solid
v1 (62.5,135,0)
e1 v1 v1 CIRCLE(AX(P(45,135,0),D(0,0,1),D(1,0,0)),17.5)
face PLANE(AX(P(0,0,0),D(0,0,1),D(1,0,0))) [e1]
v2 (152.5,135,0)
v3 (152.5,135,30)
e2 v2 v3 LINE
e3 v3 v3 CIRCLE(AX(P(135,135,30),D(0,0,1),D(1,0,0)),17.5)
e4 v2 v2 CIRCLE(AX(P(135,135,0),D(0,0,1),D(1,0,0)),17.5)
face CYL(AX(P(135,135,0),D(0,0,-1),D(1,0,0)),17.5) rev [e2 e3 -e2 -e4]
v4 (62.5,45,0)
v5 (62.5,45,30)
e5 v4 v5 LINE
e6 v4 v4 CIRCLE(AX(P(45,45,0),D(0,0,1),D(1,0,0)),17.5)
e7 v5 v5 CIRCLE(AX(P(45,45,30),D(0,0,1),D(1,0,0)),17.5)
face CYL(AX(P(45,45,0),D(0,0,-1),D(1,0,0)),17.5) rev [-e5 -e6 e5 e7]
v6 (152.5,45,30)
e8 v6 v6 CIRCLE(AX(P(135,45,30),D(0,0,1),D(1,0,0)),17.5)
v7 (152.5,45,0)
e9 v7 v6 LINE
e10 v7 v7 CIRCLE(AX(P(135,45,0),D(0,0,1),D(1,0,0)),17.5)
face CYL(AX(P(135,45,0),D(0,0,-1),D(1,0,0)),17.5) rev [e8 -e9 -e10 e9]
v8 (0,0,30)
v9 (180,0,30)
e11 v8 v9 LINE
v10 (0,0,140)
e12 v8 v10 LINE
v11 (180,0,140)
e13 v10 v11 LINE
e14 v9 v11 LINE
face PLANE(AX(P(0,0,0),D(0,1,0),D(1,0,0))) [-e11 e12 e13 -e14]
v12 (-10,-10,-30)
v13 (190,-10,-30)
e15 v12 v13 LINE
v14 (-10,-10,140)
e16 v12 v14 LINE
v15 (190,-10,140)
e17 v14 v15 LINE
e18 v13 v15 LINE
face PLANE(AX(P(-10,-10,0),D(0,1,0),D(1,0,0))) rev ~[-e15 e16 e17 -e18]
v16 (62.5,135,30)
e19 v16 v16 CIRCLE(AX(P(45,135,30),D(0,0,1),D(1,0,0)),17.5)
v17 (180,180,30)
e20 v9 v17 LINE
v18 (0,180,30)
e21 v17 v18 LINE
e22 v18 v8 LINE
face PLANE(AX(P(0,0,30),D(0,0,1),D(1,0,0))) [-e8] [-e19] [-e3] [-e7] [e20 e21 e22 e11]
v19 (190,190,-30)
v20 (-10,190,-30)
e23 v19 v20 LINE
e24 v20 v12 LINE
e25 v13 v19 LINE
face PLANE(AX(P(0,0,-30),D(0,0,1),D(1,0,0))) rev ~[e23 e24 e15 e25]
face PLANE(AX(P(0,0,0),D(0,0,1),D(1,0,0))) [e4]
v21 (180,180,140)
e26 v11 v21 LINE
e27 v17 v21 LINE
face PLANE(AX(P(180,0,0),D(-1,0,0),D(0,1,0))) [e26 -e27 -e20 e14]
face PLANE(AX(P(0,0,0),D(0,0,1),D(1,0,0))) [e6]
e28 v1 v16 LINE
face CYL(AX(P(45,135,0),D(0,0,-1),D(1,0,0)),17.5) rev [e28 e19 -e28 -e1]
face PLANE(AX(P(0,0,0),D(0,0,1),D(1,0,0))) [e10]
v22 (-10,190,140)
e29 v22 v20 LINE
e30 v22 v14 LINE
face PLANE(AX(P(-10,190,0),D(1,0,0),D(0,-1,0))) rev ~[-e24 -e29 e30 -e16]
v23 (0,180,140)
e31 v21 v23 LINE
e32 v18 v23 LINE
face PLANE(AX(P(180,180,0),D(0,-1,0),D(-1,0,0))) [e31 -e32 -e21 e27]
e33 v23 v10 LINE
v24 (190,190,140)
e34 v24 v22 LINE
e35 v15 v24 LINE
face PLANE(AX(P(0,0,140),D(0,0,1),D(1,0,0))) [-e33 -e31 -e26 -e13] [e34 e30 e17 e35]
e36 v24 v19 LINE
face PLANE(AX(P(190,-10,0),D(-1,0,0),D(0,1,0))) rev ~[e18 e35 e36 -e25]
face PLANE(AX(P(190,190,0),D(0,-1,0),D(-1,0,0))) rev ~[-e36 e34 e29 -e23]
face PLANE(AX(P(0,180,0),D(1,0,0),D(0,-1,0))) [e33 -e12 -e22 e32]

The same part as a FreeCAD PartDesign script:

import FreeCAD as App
import Part
import Sketcher
Q = App.Units.Quantity


def add_polygon(sketch, points):
    """Adds a closed chain of lines whose ends are joined by coincident constraints."""
    first, n = sketch.GeometryCount, len(points)
    for a, b in zip(points, points[1:] + points[:1]):
        sketch.addGeometry(Part.LineSegment(App.Vector(*a, 0), App.Vector(*b, 0)), False)
    for i in range(n):
        sketch.addConstraint(Sketcher.Constraint("Coincident", first + i, 2, first + (i + 1) % n, 1))

doc = App.newDocument("Part")
body = doc.addObject("PartDesign::Body", "Body")

# Sketch on XY plane
sketch1 = body.newObject("Sketcher::SketchObject", "Sketch")
sketch1.AttachmentSupport = (doc.getObject("XY_Plane"), [""])
sketch1.MapMode = "FlatFace"
add_polygon(sketch1, [(-10, 190), (-10, -10), (190, -10), (190, 190)])  # lines 0-3
add_polygon(sketch1, [(180, 0), (0, 0), (0, 180), (180, 180)])  # lines 4-7
sketch1.addConstraint(Sketcher.Constraint("Vertical", 0))
sketch1.addConstraint(Sketcher.Constraint("Horizontal", 1))
sketch1.addConstraint(Sketcher.Constraint("Vertical", 2))
sketch1.addConstraint(Sketcher.Constraint("Horizontal", 3))
sketch1.addConstraint(Sketcher.Constraint("Horizontal", 4))
sketch1.addConstraint(Sketcher.Constraint("Vertical", 5))
sketch1.addConstraint(Sketcher.Constraint("Horizontal", 6))
sketch1.addConstraint(Sketcher.Constraint("Vertical", 7))
sketch1.addConstraint(Sketcher.Constraint("Coincident", 4, 2, -1, 1))
sketch1.addConstraint(Sketcher.Constraint("Equal", 3, 0))
sketch1.addConstraint(Sketcher.Constraint("Equal", 6, 5))
sketch1.addConstraint(Sketcher.Constraint("DistanceX", 4, 2, 4, 1, Q("180 mm")))
sketch1.addConstraint(Sketcher.Constraint("DistanceX", 1, 1, 1, 2, Q("200 mm")))
sketch1.addConstraint(Sketcher.Constraint("DistanceX", 0, 2, -1, 1, Q("10 mm")))
sketch1.addConstraint(Sketcher.Constraint("DistanceY", 0, 2, -1, 1, Q("10 mm")))
pad1 = body.newObject("PartDesign::Pad", "Pad")
pad1.Profile = sketch1
pad1.Length = 140

# Sketch on XY plane
sketch2 = body.newObject("Sketcher::SketchObject", "Sketch001")
sketch2.AttachmentSupport = (doc.getObject("XY_Plane"), [""])
sketch2.MapMode = "FlatFace"
add_polygon(sketch2, [(-10, 190), (-10, -10), (190, -10), (190, 190)])  # lines 0-3
sketch2.addConstraint(Sketcher.Constraint("Vertical", 0))
sketch2.addConstraint(Sketcher.Constraint("Horizontal", 1))
sketch2.addConstraint(Sketcher.Constraint("Vertical", 2))
sketch2.addConstraint(Sketcher.Constraint("Horizontal", 3))
sketch2.addConstraint(Sketcher.Constraint("Equal", 3, 0))
sketch2.addConstraint(Sketcher.Constraint("DistanceX", 1, 1, 1, 2, Q("200 mm")))
sketch2.addConstraint(Sketcher.Constraint("DistanceX", 0, 2, -1, 1, Q("10 mm")))
sketch2.addConstraint(Sketcher.Constraint("DistanceY", 0, 2, -1, 1, Q("10 mm")))
pad2 = body.newObject("PartDesign::Pad", "Pad001")
pad2.Profile = sketch2
pad2.Length = 30
pad2.Reversed = True

# Sketch on XY plane
sketch3 = body.newObject("Sketcher::SketchObject", "Sketch002")
sketch3.AttachmentSupport = (doc.getObject("XY_Plane"), [""])
sketch3.MapMode = "FlatFace"
add_polygon(sketch3, [(0, 180), (0, 0), (180, 0), (180, 180)])  # lines 0-3
sketch3.addGeometry(Part.Circle(App.Vector(45, 45, 0), App.Vector(0, 0, 1), 18), False)  # 4
sketch3.addGeometry(Part.Circle(App.Vector(135, 45, 0), App.Vector(0, 0, 1), 18), False)  # 5
sketch3.addGeometry(Part.Circle(App.Vector(45, 135, 0), App.Vector(0, 0, 1), 18), False)  # 6
sketch3.addGeometry(Part.Circle(App.Vector(135, 135, 0), App.Vector(0, 0, 1), 18), False)  # 7
sketch3.addConstraint(Sketcher.Constraint("Vertical", 0))
sketch3.addConstraint(Sketcher.Constraint("Horizontal", 1))
sketch3.addConstraint(Sketcher.Constraint("Vertical", 2))
sketch3.addConstraint(Sketcher.Constraint("Horizontal", 3))
sketch3.addConstraint(Sketcher.Constraint("Coincident", 0, 2, -1, 1))
sketch3.addConstraint(Sketcher.Constraint("Equal", 4, 5))
sketch3.addConstraint(Sketcher.Constraint("Equal", 5, 6))
sketch3.addConstraint(Sketcher.Constraint("Equal", 6, 7))
sketch3.addConstraint(Sketcher.Constraint("Horizontal", 4, 3, 5, 3))
sketch3.addConstraint(Sketcher.Constraint("Horizontal", 6, 3, 7, 3))
sketch3.addConstraint(Sketcher.Constraint("Vertical", 4, 3, 6, 3))
sketch3.addConstraint(Sketcher.Constraint("Vertical", 5, 3, 7, 3))
sketch3.addConstraint(Sketcher.Constraint("Equal", 3, 0))
sketch3.addConstraint(Sketcher.Constraint("Diameter", 4, Q("35 mm")))
sketch3.addConstraint(Sketcher.Constraint("DistanceX", 1, 1, 1, 2, Q("180 mm")))
sketch3.addConstraint(Sketcher.Constraint("DistanceX", -1, 1, 4, 3, Q("45 mm")))
sketch3.addConstraint(Sketcher.Constraint("DistanceY", -1, 1, 4, 3, Q("45 mm")))
sketch3.addConstraint(Sketcher.Constraint("DistanceX", 5, 3, 1, 2, Q("45 mm")))
sketch3.addConstraint(Sketcher.Constraint("DistanceY", 7, 3, 2, 2, Q("45 mm")))
pad3 = body.newObject("PartDesign::Pad", "Pad002")
pad3.Profile = sketch3
pad3.Length = 30

doc.recompute()
